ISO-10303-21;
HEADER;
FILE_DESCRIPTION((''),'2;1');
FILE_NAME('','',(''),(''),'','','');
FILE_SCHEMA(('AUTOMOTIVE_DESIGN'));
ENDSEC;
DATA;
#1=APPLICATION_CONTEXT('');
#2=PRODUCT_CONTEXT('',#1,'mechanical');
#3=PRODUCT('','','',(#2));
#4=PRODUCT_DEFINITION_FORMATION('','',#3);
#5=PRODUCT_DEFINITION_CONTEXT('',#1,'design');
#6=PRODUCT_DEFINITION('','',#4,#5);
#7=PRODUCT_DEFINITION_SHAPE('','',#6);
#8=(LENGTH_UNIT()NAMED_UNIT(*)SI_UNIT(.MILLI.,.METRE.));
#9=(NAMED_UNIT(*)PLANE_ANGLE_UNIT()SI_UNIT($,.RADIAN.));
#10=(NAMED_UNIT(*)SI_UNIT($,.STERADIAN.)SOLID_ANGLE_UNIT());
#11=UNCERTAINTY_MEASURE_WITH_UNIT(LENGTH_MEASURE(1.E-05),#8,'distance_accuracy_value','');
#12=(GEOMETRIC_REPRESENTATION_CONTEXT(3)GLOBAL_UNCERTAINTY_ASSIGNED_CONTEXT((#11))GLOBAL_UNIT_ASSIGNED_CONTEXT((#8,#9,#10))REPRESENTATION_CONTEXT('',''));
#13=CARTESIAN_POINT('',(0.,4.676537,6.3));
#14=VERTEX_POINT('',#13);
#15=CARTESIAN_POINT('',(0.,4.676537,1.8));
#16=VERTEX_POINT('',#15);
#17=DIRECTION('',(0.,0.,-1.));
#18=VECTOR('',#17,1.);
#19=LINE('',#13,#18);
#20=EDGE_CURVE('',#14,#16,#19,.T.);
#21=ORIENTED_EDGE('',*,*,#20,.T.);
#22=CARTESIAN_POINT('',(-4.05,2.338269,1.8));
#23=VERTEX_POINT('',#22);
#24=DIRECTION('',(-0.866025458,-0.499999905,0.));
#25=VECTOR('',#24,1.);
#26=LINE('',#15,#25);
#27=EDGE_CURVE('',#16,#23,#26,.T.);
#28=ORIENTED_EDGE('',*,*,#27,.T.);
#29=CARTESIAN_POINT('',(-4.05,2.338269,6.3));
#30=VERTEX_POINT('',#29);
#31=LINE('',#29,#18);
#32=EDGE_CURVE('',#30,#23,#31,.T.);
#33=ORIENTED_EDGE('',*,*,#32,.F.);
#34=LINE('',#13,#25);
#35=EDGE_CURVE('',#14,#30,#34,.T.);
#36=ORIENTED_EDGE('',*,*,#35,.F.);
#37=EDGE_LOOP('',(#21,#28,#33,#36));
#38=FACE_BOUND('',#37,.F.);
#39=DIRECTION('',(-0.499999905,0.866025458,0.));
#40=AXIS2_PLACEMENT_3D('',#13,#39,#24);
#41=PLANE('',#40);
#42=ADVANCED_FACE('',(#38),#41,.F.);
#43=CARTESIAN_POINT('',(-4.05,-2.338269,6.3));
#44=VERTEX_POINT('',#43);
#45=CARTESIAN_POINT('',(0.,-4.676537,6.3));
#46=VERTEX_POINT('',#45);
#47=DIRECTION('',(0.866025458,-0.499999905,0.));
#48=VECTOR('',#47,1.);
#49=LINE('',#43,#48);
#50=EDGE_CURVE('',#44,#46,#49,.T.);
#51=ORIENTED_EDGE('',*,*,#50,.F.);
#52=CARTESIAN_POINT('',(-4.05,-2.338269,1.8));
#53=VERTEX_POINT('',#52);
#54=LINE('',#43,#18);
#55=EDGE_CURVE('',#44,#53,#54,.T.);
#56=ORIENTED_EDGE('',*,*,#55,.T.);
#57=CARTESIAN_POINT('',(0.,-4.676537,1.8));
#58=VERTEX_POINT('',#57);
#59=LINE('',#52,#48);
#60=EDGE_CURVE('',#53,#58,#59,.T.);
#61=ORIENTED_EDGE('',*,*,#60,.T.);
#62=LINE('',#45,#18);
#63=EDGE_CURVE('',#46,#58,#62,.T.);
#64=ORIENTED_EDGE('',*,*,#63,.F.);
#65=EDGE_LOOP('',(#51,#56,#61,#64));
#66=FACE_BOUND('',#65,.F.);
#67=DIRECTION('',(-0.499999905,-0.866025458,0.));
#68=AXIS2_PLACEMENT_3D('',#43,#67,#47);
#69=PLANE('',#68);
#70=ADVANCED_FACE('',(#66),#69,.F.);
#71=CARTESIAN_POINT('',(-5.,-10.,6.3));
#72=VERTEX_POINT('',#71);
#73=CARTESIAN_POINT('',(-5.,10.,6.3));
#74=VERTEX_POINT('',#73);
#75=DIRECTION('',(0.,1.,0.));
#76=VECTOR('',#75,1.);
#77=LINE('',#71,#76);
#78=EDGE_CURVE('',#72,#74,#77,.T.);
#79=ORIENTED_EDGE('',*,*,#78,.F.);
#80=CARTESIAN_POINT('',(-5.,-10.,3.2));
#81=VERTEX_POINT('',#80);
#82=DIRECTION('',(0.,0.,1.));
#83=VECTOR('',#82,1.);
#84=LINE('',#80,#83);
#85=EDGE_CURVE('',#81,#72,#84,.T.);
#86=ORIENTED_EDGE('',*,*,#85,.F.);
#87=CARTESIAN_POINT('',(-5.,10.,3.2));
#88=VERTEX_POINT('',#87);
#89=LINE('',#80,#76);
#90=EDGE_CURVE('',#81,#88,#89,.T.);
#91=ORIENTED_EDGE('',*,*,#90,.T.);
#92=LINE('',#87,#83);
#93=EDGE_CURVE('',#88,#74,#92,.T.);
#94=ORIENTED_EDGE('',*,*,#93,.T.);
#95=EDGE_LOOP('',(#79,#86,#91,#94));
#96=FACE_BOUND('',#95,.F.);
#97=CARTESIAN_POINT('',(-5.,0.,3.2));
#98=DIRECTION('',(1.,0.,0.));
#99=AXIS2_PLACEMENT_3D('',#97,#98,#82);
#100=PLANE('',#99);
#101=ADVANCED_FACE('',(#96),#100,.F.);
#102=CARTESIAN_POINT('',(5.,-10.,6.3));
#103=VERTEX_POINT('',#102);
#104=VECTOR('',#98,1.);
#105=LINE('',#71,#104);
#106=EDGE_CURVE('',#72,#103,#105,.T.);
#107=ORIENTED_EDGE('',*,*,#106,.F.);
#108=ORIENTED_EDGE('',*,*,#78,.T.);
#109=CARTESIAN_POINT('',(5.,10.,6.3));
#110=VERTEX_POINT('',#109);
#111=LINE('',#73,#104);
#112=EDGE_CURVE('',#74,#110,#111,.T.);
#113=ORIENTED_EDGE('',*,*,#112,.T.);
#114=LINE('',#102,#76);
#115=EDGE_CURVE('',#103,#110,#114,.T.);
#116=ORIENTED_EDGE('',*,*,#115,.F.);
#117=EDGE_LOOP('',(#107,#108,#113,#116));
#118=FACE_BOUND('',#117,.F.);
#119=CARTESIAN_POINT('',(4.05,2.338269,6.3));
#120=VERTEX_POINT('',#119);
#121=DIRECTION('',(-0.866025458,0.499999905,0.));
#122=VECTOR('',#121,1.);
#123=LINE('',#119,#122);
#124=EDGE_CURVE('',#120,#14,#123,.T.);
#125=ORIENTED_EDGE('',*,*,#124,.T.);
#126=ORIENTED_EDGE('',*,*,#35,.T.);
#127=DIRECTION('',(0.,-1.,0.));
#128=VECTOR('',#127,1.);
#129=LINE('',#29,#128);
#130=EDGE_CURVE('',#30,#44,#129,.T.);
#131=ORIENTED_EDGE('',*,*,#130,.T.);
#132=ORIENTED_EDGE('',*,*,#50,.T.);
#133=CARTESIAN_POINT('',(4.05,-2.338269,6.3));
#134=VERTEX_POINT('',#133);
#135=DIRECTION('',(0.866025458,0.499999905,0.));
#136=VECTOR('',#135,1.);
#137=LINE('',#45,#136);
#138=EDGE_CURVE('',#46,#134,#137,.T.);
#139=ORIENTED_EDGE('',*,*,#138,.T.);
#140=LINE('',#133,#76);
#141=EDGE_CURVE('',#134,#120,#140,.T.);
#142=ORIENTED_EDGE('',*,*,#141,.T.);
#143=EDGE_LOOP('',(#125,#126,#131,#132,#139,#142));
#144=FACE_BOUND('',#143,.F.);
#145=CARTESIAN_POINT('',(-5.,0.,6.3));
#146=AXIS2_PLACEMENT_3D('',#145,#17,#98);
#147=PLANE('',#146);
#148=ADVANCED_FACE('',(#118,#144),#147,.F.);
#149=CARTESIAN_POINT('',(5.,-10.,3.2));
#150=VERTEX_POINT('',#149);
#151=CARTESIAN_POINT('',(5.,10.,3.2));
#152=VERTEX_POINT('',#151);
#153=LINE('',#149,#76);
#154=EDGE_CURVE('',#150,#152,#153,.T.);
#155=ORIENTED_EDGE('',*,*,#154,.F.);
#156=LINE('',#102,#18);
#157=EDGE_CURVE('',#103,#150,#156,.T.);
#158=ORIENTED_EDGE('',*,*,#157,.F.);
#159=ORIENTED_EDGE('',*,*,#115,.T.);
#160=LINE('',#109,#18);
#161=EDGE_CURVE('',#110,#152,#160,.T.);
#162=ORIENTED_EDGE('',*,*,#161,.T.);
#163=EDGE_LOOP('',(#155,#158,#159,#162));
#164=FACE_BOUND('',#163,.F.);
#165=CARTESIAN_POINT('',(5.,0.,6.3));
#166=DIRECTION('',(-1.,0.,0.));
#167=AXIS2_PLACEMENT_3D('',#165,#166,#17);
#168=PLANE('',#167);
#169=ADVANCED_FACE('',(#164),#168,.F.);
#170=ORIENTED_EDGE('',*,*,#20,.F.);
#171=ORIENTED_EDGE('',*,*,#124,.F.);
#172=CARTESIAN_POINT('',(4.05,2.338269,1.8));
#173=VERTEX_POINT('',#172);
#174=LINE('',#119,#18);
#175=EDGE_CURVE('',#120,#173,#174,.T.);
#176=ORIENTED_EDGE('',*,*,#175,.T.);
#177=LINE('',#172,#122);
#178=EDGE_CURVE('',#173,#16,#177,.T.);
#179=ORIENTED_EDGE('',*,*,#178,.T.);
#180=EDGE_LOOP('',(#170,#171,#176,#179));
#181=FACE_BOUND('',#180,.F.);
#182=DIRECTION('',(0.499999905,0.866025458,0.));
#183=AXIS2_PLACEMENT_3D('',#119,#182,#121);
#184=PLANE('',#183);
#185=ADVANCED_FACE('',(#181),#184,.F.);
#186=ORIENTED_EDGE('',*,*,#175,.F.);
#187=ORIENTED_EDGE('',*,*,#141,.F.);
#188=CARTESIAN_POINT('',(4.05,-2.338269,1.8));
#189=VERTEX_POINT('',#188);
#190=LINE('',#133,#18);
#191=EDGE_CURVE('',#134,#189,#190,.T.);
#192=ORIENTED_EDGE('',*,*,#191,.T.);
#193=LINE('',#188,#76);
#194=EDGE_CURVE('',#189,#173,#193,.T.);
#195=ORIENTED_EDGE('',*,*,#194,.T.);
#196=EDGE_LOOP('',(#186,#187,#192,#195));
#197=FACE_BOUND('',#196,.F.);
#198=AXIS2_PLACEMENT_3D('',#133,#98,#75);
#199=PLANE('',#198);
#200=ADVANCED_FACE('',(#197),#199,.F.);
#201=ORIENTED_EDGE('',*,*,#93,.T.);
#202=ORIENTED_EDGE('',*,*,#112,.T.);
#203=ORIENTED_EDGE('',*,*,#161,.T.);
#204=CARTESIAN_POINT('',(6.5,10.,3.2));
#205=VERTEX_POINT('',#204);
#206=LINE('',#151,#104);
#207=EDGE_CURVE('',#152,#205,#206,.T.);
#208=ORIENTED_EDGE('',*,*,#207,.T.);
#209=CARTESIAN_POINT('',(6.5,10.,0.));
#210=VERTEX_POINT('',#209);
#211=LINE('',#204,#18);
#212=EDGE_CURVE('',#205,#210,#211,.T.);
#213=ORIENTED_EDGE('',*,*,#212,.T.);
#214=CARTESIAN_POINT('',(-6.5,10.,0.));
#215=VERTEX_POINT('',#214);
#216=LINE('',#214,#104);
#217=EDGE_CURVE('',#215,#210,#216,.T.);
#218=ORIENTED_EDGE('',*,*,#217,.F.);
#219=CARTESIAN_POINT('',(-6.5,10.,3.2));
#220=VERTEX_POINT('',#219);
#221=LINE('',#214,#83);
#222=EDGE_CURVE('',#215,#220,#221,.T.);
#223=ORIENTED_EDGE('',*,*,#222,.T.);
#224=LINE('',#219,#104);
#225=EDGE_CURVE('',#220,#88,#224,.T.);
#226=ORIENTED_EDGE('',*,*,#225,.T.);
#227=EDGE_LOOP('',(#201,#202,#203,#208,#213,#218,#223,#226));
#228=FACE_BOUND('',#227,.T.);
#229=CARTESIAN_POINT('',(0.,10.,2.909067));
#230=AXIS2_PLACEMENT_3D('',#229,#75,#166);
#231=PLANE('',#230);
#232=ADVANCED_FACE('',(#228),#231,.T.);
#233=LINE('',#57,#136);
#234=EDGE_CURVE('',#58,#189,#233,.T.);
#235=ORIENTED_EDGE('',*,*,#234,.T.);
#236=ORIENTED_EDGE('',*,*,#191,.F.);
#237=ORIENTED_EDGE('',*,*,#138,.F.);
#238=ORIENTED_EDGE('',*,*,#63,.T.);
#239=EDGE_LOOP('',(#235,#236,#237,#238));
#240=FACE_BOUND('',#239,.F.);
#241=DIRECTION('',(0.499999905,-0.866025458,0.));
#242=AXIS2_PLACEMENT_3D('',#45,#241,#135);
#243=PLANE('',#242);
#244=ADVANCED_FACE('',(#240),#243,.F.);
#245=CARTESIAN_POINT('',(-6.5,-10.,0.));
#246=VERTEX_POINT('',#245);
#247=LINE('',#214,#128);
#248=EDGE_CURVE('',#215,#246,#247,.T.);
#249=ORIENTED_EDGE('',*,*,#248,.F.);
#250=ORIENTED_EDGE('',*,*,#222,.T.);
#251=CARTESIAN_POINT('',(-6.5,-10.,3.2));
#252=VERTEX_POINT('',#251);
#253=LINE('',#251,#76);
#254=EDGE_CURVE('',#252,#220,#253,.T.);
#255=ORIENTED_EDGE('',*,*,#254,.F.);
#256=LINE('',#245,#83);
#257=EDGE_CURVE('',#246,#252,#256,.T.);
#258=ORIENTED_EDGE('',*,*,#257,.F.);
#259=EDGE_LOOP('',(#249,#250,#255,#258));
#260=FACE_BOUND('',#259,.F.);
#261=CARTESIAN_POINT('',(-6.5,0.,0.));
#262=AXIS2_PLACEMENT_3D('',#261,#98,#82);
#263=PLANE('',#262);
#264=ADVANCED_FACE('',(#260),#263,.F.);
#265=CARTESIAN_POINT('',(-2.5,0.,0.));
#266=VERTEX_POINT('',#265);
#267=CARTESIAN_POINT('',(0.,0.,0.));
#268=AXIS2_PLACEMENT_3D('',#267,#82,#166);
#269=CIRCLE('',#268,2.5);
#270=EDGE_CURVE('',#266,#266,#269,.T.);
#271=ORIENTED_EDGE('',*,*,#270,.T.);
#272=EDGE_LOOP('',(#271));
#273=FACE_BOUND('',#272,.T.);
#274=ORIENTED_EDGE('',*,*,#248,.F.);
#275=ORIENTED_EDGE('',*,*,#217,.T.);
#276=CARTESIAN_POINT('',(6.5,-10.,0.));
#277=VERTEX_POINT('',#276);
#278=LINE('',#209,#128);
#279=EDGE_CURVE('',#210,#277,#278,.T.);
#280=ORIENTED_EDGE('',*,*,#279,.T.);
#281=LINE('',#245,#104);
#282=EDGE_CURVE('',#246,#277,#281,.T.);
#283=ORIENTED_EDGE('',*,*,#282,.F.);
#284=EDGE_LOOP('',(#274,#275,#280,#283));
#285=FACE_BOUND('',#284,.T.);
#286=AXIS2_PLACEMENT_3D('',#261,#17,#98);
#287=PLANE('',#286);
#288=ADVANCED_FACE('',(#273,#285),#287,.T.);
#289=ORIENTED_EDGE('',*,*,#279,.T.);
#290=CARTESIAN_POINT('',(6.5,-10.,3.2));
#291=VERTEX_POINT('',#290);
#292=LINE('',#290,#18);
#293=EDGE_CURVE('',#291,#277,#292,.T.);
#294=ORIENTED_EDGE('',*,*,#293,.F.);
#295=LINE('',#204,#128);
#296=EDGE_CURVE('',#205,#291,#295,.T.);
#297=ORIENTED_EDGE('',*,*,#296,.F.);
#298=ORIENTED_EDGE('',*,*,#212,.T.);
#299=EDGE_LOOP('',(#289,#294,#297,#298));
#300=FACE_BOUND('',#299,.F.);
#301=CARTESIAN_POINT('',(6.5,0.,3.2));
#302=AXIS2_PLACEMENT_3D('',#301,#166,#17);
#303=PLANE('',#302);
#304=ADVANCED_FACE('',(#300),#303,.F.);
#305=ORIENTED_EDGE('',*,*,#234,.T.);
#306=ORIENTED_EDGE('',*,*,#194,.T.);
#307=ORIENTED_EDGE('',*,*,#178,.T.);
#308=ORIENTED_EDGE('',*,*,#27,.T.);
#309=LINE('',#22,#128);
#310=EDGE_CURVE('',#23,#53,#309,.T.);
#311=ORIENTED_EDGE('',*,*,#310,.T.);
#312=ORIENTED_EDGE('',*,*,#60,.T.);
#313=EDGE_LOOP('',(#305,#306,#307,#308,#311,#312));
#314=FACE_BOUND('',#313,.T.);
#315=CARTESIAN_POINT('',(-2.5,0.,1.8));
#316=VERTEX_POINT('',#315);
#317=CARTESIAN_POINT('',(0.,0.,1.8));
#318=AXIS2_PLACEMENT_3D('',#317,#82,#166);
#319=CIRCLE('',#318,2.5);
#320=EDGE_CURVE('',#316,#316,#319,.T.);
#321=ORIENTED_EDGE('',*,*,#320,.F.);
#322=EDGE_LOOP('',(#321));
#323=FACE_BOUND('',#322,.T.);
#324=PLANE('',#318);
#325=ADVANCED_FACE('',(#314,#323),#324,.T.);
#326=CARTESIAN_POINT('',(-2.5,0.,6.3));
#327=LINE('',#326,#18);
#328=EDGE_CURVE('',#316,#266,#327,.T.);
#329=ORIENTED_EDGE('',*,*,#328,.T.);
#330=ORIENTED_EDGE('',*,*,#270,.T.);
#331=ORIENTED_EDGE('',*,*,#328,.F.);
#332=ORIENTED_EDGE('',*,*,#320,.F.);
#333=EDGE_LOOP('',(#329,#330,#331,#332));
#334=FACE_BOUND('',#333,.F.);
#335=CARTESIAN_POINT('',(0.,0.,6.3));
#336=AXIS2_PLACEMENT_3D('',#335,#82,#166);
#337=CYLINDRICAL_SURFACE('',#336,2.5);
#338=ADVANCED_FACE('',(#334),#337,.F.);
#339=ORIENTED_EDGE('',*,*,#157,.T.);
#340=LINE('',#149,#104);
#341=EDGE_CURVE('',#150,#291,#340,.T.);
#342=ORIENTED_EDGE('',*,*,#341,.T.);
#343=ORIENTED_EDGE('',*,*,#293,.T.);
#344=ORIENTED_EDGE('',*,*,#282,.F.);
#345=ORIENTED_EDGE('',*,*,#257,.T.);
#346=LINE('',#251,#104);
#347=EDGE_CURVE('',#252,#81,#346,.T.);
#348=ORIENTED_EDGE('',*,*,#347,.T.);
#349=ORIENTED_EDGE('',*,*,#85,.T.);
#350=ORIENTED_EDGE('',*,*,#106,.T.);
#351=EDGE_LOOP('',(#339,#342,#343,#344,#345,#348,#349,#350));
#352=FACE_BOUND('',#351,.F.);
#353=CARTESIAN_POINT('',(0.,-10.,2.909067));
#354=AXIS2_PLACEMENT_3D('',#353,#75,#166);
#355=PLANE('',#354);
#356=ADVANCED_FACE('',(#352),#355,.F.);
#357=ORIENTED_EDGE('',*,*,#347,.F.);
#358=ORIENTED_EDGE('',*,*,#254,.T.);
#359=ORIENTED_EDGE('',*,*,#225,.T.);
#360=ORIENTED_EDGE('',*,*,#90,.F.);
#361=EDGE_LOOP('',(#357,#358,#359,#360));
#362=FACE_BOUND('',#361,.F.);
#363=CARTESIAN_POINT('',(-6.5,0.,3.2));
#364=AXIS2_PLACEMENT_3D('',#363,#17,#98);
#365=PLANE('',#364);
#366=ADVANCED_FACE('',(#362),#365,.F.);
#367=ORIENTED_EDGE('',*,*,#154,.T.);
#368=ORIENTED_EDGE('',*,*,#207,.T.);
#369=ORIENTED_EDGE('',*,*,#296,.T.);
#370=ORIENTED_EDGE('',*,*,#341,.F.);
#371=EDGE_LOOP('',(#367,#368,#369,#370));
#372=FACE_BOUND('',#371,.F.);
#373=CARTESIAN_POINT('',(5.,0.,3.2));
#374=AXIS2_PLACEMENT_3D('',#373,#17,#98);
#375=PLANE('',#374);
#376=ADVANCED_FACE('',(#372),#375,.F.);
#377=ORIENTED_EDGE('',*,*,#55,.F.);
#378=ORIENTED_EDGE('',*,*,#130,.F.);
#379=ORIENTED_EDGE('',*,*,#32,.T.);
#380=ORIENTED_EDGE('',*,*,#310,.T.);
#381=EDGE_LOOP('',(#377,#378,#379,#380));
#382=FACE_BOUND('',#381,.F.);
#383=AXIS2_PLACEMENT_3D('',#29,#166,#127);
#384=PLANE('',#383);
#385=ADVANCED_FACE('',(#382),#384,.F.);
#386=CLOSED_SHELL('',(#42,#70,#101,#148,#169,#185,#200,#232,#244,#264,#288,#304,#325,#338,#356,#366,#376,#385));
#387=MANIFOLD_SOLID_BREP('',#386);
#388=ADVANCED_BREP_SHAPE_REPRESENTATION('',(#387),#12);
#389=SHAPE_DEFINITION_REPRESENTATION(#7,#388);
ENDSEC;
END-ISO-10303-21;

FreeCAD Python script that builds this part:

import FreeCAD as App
import Part
import Sketcher
Q = App.Units.Quantity

doc = App.newDocument("Part")
body = doc.addObject("PartDesign::Body", "Body")

# Sketch on XZ plane
sketch1 = doc.addObject("Sketcher::SketchObject", "Sketch")
body.addObject(sketch1)
sketch1.AttachmentSupport = (doc.XZ_Plane, [""])
sketch1.MapMode = "FlatFace"
sketch1.addGeometry([
    Part.LineSegment(App.Vector(-6.5, 3.2, 0), App.Vector(-6.5, 0, 0)),  # 0
    Part.LineSegment(App.Vector(-6.5, 0, 0), App.Vector(6.5, 0, 0)),  # 1
    Part.LineSegment(App.Vector(6.5, 0, 0), App.Vector(6.5, 3.2, 0)),  # 2
    Part.LineSegment(App.Vector(6.5, 3.2, 0), App.Vector(5, 3.2, 0)),  # 3
    Part.LineSegment(App.Vector(5, 3.2, 0), App.Vector(5, 6.3, 0)),  # 4
    Part.LineSegment(App.Vector(5, 6.3, 0), App.Vector(-5, 6.3, 0)),  # 5
    Part.LineSegment(App.Vector(-5, 6.3, 0), App.Vector(-5, 3.2, 0)),  # 6
    Part.LineSegment(App.Vector(-5, 3.2, 0), App.Vector(-6.5, 3.2, 0)),  # 7
], False)
sketch1.addConstraint([
    Sketcher.Constraint("Coincident", 0, 2, 1, 1),
    Sketcher.Constraint("Coincident", 1, 2, 2, 1),
    Sketcher.Constraint("Coincident", 2, 2, 3, 1),
    Sketcher.Constraint("Coincident", 3, 2, 4, 1),
    Sketcher.Constraint("Coincident", 4, 2, 5, 1),
    Sketcher.Constraint("Coincident", 5, 2, 6, 1),
    Sketcher.Constraint("Coincident", 6, 2, 7, 1),
    Sketcher.Constraint("Coincident", 7, 2, 0, 1),
    Sketcher.Constraint("Vertical", 0),
    Sketcher.Constraint("Horizontal", 1),
    Sketcher.Constraint("Vertical", 2),
    Sketcher.Constraint("Horizontal", 3),
    Sketcher.Constraint("Vertical", 4),
    Sketcher.Constraint("Horizontal", 5),
    Sketcher.Constraint("Vertical", 6),
    Sketcher.Constraint("Horizontal", 7),
    Sketcher.Constraint("Symmetric", 0, 2, 1, 2, -1, 1),
    Sketcher.Constraint("Symmetric", 3, 2, 6, 2, -2),
    Sketcher.Constraint("DistanceX", 1, 1, 1, 2, 13.0),
    Sketcher.Constraint("DistanceX", 5, 2, 5, 1, 10.0),
    Sketcher.Constraint("DistanceY", 0, 2, 0, 1, 3.2),
    Sketcher.Constraint("DistanceY", 4, 1, 4, 2, 3.1),
])
pad1 = doc.addObject("PartDesign::Pad", "Pad")
body.addObject(pad1)
pad1.Profile = sketch1
pad1.Length = 20
pad1.Midplane = True

# Sketch on XY plane
sketch2 = doc.addObject("Sketcher::SketchObject", "Sketch001")
body.addObject(sketch2)
sketch2.AttachmentSupport = (doc.XY_Plane, [""])
sketch2.MapMode = "FlatFace"
sketch2.AttachmentOffset = App.Placement(App.Vector(0, 0, 6.3), App.Rotation())
sketch2.addGeometry(Part.Circle(App.Vector(0, 0, 0), App.Vector(0, 0, 1), 2.5), False)
sketch2.addConstraint([
    Sketcher.Constraint("Coincident", 0, 3, -1, 1),
    Sketcher.Constraint("Diameter", 0, 5.0),
])
pocket1 = doc.addObject("PartDesign::Pocket", "Pocket")
body.addObject(pocket1)
pocket1.Profile = sketch2
pocket1.Type = "ThroughAll"

# Sketch on XY plane
sketch3 = doc.addObject("Sketcher::SketchObject", "Sketch002")
body.addObject(sketch3)
sketch3.AttachmentSupport = (doc.XY_Plane, [""])
sketch3.MapMode = "FlatFace"
sketch3.AttachmentOffset = App.Placement(App.Vector(0, 0, 6.3), App.Rotation())
sketch3.addGeometry([
    Part.LineSegment(App.Vector(4.05, -2.338269, 0), App.Vector(4.05, 2.338269, 0)),  # 0
    Part.LineSegment(App.Vector(4.05, 2.338269, 0), App.Vector(0, 4.676537, 0)),  # 1
    Part.LineSegment(App.Vector(0, 4.676537, 0), App.Vector(-4.05, 2.338269, 0)),  # 2
    Part.LineSegment(App.Vector(-4.05, 2.338269, 0), App.Vector(-4.05, -2.338269, 0)),  # 3
    Part.LineSegment(App.Vector(-4.05, -2.338269, 0), App.Vector(0, -4.676537, 0)),  # 4
    Part.LineSegment(App.Vector(0, -4.676537, 0), App.Vector(4.05, -2.338269, 0)),  # 5
], False)
sketch3.addConstraint([
    Sketcher.Constraint("Coincident", 0, 2, 1, 1),
    Sketcher.Constraint("Coincident", 1, 2, 2, 1),
    Sketcher.Constraint("Coincident", 2, 2, 3, 1),
    Sketcher.Constraint("Coincident", 3, 2, 4, 1),
    Sketcher.Constraint("Coincident", 4, 2, 5, 1),
    Sketcher.Constraint("Coincident", 5, 2, 0, 1),
    Sketcher.Constraint("Vertical", 0),
    Sketcher.Constraint("Vertical", 3),
    Sketcher.Constraint("Symmetric", 0, 2, 3, 2, -1, 1),
    Sketcher.Constraint("Symmetric", 1, 2, 4, 2, -1, 1),
    Sketcher.Constraint("PointOnObject", 1, 2, -2),
    Sketcher.Constraint("Parallel", 2, 5),
    Sketcher.Constraint("Horizontal", 0, 2, 2, 2),
    Sketcher.Constraint("Angle", 1, Q("150.000006 deg")),
    Sketcher.Constraint("DistanceX", 2, 2, 0, 2, 8.1),
    Sketcher.Constraint("DistanceY", 0, 1, 0, 2, 4.676538),
])
pocket2 = doc.addObject("PartDesign::Pocket", "Pocket001")
body.addObject(pocket2)
pocket2.Profile = sketch3
pocket2.Length = 4.5

doc.recompute()
